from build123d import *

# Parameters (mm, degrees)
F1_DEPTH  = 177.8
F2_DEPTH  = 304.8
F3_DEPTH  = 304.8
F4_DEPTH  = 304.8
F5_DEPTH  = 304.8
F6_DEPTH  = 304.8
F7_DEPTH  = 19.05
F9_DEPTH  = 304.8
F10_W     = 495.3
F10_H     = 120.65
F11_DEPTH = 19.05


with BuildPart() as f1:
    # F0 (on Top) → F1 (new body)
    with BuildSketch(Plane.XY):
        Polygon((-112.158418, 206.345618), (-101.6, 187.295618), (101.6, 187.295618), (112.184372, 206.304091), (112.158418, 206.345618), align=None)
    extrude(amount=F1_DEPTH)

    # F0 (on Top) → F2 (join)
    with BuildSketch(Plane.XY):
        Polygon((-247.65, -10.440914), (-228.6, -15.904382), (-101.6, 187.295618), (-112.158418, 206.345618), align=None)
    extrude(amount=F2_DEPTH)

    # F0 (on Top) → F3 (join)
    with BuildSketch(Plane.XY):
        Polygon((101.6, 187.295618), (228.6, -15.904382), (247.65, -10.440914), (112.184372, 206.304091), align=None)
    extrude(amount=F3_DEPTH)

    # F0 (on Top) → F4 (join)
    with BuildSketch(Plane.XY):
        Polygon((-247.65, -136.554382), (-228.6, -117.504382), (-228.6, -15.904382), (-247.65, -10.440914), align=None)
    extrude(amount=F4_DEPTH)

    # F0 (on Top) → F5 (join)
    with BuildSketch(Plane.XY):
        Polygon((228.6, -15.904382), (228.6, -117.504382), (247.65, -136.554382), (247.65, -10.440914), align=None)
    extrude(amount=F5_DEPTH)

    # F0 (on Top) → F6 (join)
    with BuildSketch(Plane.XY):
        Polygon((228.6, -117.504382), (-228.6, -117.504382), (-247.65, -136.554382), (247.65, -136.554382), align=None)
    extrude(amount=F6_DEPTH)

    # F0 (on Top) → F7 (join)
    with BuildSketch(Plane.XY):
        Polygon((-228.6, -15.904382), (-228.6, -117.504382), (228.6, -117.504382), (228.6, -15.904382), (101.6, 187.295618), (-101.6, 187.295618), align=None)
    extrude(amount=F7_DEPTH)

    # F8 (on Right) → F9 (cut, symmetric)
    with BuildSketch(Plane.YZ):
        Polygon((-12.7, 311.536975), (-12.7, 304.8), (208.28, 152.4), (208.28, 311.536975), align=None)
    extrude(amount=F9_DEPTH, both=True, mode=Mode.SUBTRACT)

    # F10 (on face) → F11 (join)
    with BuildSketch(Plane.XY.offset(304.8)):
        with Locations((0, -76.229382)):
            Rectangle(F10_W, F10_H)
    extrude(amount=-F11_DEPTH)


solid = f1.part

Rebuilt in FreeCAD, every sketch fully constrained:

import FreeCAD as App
import Part
import Sketcher
from FreeCAD import Vector
Q = App.Units.Quantity


def add_polygon(sketch, points):
    """Adds a closed chain of lines whose ends are joined by coincident constraints."""
    first, n = sketch.GeometryCount, len(points)
    for a, b in zip(points, points[1:] + points[:1]):
        sketch.addGeometry(Part.LineSegment(App.Vector(*a, 0), App.Vector(*b, 0)), False)
    for i in range(n):
        sketch.addConstraint(Sketcher.Constraint("Coincident", first + i, 2, first + (i + 1) % n, 1))

doc = App.newDocument("Part")
params = doc.addObject("Spreadsheet::Sheet", "Params")
for row, (alias, value) in enumerate([
    ("sketch1_width", "8 in"),
    ("pad1_length", "7 in"),
    ("pad2_length", "12 in"),
    ("pad3_length", "12 in"),
    ("sketch4_height", "4 in"),
    ("pad4_length", "12 in"),
    ("sketch5_height", "4 in"),
    ("pad5_length", "12 in"),
    ("sketch6_width", "18 in"),
    ("sketch6_width2", "19.5 in"),
    ("pad6_length", "12 in"),
    ("sketch7_width", "18 in"),
    ("sketch7_width2", "8 in"),
    ("sketch7_height", "4 in"),
    ("pad7_length", "0.75 in"),
    ("sketch8_width", "8.7 in"),
    ("pocket1_length", "24 in"),
    ("sketch9_width", "19.5 in"),
    ("sketch9_height", "4.75 in"),
    ("pad8_length", "0.75 in"),
], start=1):
    params.set(f"A{row}", alias)
    params.set(f"B{row}", "=" + value)
    params.setAlias(f"B{row}", alias)

body = doc.addObject("PartDesign::Body", "Body")

sketch1 = body.newObject("Sketcher::SketchObject", "Sketch")
sketch1.AttachmentSupport = (doc.getObject("XY_Plane"), [""])
sketch1.MapMode = "FlatFace"
add_polygon(sketch1, [(-112.158418, 206.345618), (-101.6, 187.295618), (101.6, 187.295618), (112.184372, 206.304091), (112.158418, 206.345618)])
sketch1.addConstraint(Sketcher.Constraint("Horizontal", 1))
sketch1.addConstraint(Sketcher.Constraint("Horizontal", 4))
sketch1.addConstraint(Sketcher.Constraint("DistanceX", 1, 1, 1, 2, Q("8 in")))
sketch1.addConstraint(Sketcher.Constraint("DistanceX", 0, 2, -1, 1, Q("4 in")))
sketch1.addConstraint(Sketcher.Constraint("DistanceY", 1, 2, 3, 2, Q("0.75 in")))
sketch1.addConstraint(Sketcher.Constraint("Distance", 0, Q("21.780328 mm")))
sketch1.addConstraint(Sketcher.Constraint("Distance", 2, Q("21.756631 mm")))
sketch1.addConstraint(Sketcher.Constraint("Distance", 3, Q("0.04897 mm")))
sketch1.addConstraint(Sketcher.Constraint("DistanceX", 4, 2, 4, 1, Q("224.316836 mm")))
sketch1.addConstraint(Sketcher.Constraint("DistanceY", -1, 1, 2, 2, Q("206.304091 mm")))
sketch1.setExpression("Constraints[7]", "Params.sketch1_width")
pad1 = body.newObject("PartDesign::Pad", "Pad")
pad1.Profile = sketch1
pad1.setExpression("Length", "Params.pad1_length")

sketch2 = body.newObject("Sketcher::SketchObject", "Sketch001")
sketch2.AttachmentSupport = (doc.getObject("XY_Plane"), [""])
sketch2.MapMode = "FlatFace"
add_polygon(sketch2, [(-248, -10), (-229, -16), (-102, 187), (-112, 206)])
sketch2.addConstraint(Sketcher.Constraint("Parallel", 1, 3))
sketch2.addConstraint(Sketcher.Constraint("DistanceX", 0, 2, -1, 1, Q("9 in")))
sketch2.addConstraint(Sketcher.Constraint("DistanceX", 1, 2, -1, 1, Q("4 in")))
sketch2.addConstraint(Sketcher.Constraint("DistanceY", 0, 2, 1, 2, Q("8 in")))
sketch2.addConstraint(Sketcher.Constraint("DistanceX", 3, 2, -1, 1, Q("9.75 in")))
sketch2.addConstraint(Sketcher.Constraint("DistanceY", 1, 2, 2, 2, Q("0.75 in")))
sketch2.addConstraint(Sketcher.Constraint("Distance", 0, Q("19.817971 mm")))
sketch2.addConstraint(Sketcher.Constraint("DistanceY", -1, 1, 2, 2, Q("206.345618 mm")))
pad2 = body.newObject("PartDesign::Pad", "Pad001")
pad2.Profile = sketch2
pad2.setExpression("Length", "Params.pad2_length")

sketch3 = body.newObject("Sketcher::SketchObject", "Sketch002")
sketch3.AttachmentSupport = (doc.getObject("XY_Plane"), [""])
sketch3.MapMode = "FlatFace"
add_polygon(sketch3, [(102, 187), (229, -16), (248, -10), (112, 206)])
sketch3.addConstraint(Sketcher.Constraint("Parallel", 0, 2))
sketch3.addConstraint(Sketcher.Constraint("DistanceX", -1, 1, 0, 2, Q("9 in")))
sketch3.addConstraint(Sketcher.Constraint("DistanceX", -1, 1, 3, 2, Q("4 in")))
sketch3.addConstraint(Sketcher.Constraint("DistanceY", 0, 2, 3, 2, Q("8 in")))
sketch3.addConstraint(Sketcher.Constraint("DistanceX", -1, 1, 1, 2, Q("9.75 in")))
sketch3.addConstraint(Sketcher.Constraint("Distance", 1, Q("19.817971 mm")))
sketch3.addConstraint(Sketcher.Constraint("Distance", 3, Q("21.756631 mm")))
sketch3.addConstraint(Sketcher.Constraint("DistanceY", -1, 1, 2, 2, Q("206.304091 mm")))
pad3 = body.newObject("PartDesign::Pad", "Pad002")
pad3.Profile = sketch3
pad3.setExpression("Length", "Params.pad3_length")

sketch4 = body.newObject("Sketcher::SketchObject", "Sketch003")
sketch4.AttachmentSupport = (doc.getObject("XY_Plane"), [""])
sketch4.MapMode = "FlatFace"
add_polygon(sketch4, [(-248, -137), (-229, -118), (-229, -16), (-248, -10)])
sketch4.addConstraint(Sketcher.Constraint("Vertical", 1))
sketch4.addConstraint(Sketcher.Constraint("Vertical", 3))
sketch4.addConstraint(Sketcher.Constraint("DistanceY", 1, 1, 1, 2, Q("4 in")))
sketch4.addConstraint(Sketcher.Constraint("DistanceX", 0, 2, -1, 1, Q("9 in")))
sketch4.addConstraint(Sketcher.Constraint("Angle", 0, Q("45 deg")))
sketch4.addConstraint(Sketcher.Constraint("DistanceX", 2, 2, -1, 1, Q("9.75 in")))
sketch4.addConstraint(Sketcher.Constraint("DistanceY", 3, 2, 3, 1, Q("126.113468 mm")))
sketch4.addConstraint(Sketcher.Constraint("DistanceY", 3, 2, -1, 1, Q("136.554382 mm")))
sketch4.setExpression("Constraints[6]", "Params.sketch4_height")
pad4 = body.newObject("PartDesign::Pad", "Pad003")
pad4.Profile = sketch4
pad4.setExpression("Length", "Params.pad4_length")

sketch5 = body.newObject("Sketcher::SketchObject", "Sketch004")
sketch5.AttachmentSupport = (doc.getObject("XY_Plane"), [""])
sketch5.MapMode = "FlatFace"
add_polygon(sketch5, [(229, -16), (229, -118), (248, -137), (248, -10)])
sketch5.addConstraint(Sketcher.Constraint("Vertical", 0))
sketch5.addConstraint(Sketcher.Constraint("Vertical", 2))
sketch5.addConstraint(Sketcher.Constraint("DistanceY", 0, 2, 0, 1, Q("4 in")))
sketch5.addConstraint(Sketcher.Constraint("DistanceX", -1, 1, 0, 2, Q("9 in")))
sketch5.addConstraint(Sketcher.Constraint("Angle", 1, Q("-45 deg")))
sketch5.addConstraint(Sketcher.Constraint("DistanceX", -1, 1, 1, 2, Q("9.75 in")))
sketch5.addConstraint(Sketcher.Constraint("DistanceY", 2, 1, 2, 2, Q("126.113468 mm")))
sketch5.addConstraint(Sketcher.Constraint("DistanceY", 1, 2, -1, 1, Q("136.554382 mm")))
sketch5.setExpression("Constraints[6]", "Params.sketch5_height")
pad5 = body.newObject("PartDesign::Pad", "Pad004")
pad5.Profile = sketch5
pad5.setExpression("Length", "Params.pad5_length")

sketch6 = body.newObject("Sketcher::SketchObject", "Sketch005")
sketch6.AttachmentSupport = (doc.getObject("XY_Plane"), [""])
sketch6.MapMode = "FlatFace"
add_polygon(sketch6, [(229, -118), (-229, -118), (-248, -137), (248, -137)])
sketch6.addConstraint(Sketcher.Constraint("Horizontal", 0))
sketch6.addConstraint(Sketcher.Constraint("Horizontal", 2))
sketch6.addConstraint(Sketcher.Constraint("Perpendicular", 1, 3))
sketch6.addConstraint(Sketcher.Constraint("Equal", 1, 3))
sketch6.addConstraint(Sketcher.Constraint("DistanceX", 0, 2, 0, 1, Q("18 in")))
sketch6.addConstraint(Sketcher.Constraint("DistanceX", 2, 1, 2, 2, Q("19.5 in")))
sketch6.addConstraint(Sketcher.Constraint("DistanceX", 0, 2, -1, 1, Q("9 in")))
sketch6.addConstraint(Sketcher.Constraint("DistanceY", 1, 2, -1, 1, Q("136.554382 mm")))
sketch6.setExpression("Constraints[8]", "Params.sketch6_width")
sketch6.setExpression("Constraints[9]", "Params.sketch6_width2")
pad6 = body.newObject("PartDesign::Pad", "Pad005")
pad6.Profile = sketch6
pad6.setExpression("Length", "Params.pad6_length")

sketch7 = body.newObject("Sketcher::SketchObject", "Sketch006")
sketch7.AttachmentSupport = (doc.getObject("XY_Plane"), [""])
sketch7.MapMode = "FlatFace"
add_polygon(sketch7, [(-229, -16), (-229, -118), (229, -118), (229, -16), (102, 187), (-102, 187)])
sketch7.addConstraint(Sketcher.Constraint("Vertical", 0))
sketch7.addConstraint(Sketcher.Constraint("Horizontal", 1))
sketch7.addConstraint(Sketcher.Constraint("Vertical", 2))
sketch7.addConstraint(Sketcher.Constraint("Horizontal", 4))
sketch7.addConstraint(Sketcher.Constraint("Symmetric", 2, 2, 5, 2, -2))
sketch7.addConstraint(Sketcher.Constraint("Equal", 3, 5))
sketch7.addConstraint(Sketcher.Constraint("DistanceX", 1, 1, 1, 2, Q("18 in")))
sketch7.addConstraint(Sketcher.Constraint("DistanceX", 4, 2, 4, 1, Q("8 in")))
sketch7.addConstraint(Sketcher.Constraint("DistanceY", 0, 2, 0, 1, Q("4 in")))
sketch7.addConstraint(Sketcher.Constraint("DistanceY", 2, 2, 3, 2, Q("8 in")))
sketch7.addConstraint(Sketcher.Constraint("DistanceY", 0, 2, -1, 1, Q("117.504382 mm")))
sketch7.setExpression("Constraints[12]", "Params.sketch7_width")
sketch7.setExpression("Constraints[13]", "Params.sketch7_width2")
sketch7.setExpression("Constraints[14]", "Params.sketch7_height")
pad7 = body.newObject("PartDesign::Pad", "Pad006")
pad7.Profile = sketch7
pad7.setExpression("Length", "Params.pad7_length")

sketch8 = body.newObject("Sketcher::SketchObject", "Sketch007")
sketch8.AttachmentSupport = (doc.getObject("YZ_Plane"), [""])
sketch8.MapMode = "FlatFace"
add_polygon(sketch8, [(-13, 312), (-13, 305), (208, 152), (208, 312)])
sketch8.addConstraint(Sketcher.Constraint("Vertical", 0))
sketch8.addConstraint(Sketcher.Constraint("Vertical", 2))
sketch8.addConstraint(Sketcher.Constraint("Horizontal", 3))
sketch8.addConstraint(Sketcher.Constraint("DistanceX", 3, 2, 3, 1, Q("8.7 in")))
sketch8.addConstraint(Sketcher.Constraint("DistanceY", -1, 1, 0, 2, Q("12 in")))
sketch8.addConstraint(Sketcher.Constraint("DistanceY", -1, 1, 1, 2, Q("6 in")))
sketch8.addConstraint(Sketcher.Constraint("DistanceX", 0, 2, -1, 1, Q("0.5 in")))
sketch8.addConstraint(Sketcher.Constraint("DistanceY", 0, 2, 0, 1, Q("6.736975 mm")))
sketch8.setExpression("Constraints[7]", "Params.sketch8_width")
pocket1 = body.newObject("PartDesign::Pocket", "Pocket")
pocket1.Profile = sketch8
pocket1.setExpression("Length", "Params.pocket1_length")
pocket1.Midplane = True

sketch9 = body.newObject("Sketcher::SketchObject", "Sketch008")
sketch9.AttachmentSupport = (doc.getObject("XY_Plane"), [""])
sketch9.MapMode = "FlatFace"
sketch9.AttachmentOffset = App.Placement(Vector(0, 0, 12 * 25.4), App.Rotation())
add_polygon(sketch9, [(-248, -16), (-248, -137), (248, -137), (248, -16)])
sketch9.addConstraint(Sketcher.Constraint("Vertical", 0))
sketch9.addConstraint(Sketcher.Constraint("Horizontal", 1))
sketch9.addConstraint(Sketcher.Constraint("Vertical", 2))
sketch9.addConstraint(Sketcher.Constraint("Horizontal", 3))
sketch9.addConstraint(Sketcher.Constraint("DistanceX", 1, 1, 1, 2, Q("19.5 in")))
sketch9.addConstraint(Sketcher.Constraint("DistanceY", 0, 2, 0, 1, Q("4.75 in")))
sketch9.addConstraint(Sketcher.Constraint("DistanceX", 0, 2, -1, 1, Q("9.75 in")))
sketch9.addConstraint(Sketcher.Constraint("DistanceY", 0, 2, -1, 1, Q("136.554382 mm")))
sketch9.setExpression("Constraints[8]", "Params.sketch9_width")
sketch9.setExpression("Constraints[9]", "Params.sketch9_height")
pad8 = body.newObject("PartDesign::Pad", "Pad007")
pad8.Profile = sketch9
pad8.setExpression("Length", "Params.pad8_length")
pad8.Reversed = True

doc.recompute()
